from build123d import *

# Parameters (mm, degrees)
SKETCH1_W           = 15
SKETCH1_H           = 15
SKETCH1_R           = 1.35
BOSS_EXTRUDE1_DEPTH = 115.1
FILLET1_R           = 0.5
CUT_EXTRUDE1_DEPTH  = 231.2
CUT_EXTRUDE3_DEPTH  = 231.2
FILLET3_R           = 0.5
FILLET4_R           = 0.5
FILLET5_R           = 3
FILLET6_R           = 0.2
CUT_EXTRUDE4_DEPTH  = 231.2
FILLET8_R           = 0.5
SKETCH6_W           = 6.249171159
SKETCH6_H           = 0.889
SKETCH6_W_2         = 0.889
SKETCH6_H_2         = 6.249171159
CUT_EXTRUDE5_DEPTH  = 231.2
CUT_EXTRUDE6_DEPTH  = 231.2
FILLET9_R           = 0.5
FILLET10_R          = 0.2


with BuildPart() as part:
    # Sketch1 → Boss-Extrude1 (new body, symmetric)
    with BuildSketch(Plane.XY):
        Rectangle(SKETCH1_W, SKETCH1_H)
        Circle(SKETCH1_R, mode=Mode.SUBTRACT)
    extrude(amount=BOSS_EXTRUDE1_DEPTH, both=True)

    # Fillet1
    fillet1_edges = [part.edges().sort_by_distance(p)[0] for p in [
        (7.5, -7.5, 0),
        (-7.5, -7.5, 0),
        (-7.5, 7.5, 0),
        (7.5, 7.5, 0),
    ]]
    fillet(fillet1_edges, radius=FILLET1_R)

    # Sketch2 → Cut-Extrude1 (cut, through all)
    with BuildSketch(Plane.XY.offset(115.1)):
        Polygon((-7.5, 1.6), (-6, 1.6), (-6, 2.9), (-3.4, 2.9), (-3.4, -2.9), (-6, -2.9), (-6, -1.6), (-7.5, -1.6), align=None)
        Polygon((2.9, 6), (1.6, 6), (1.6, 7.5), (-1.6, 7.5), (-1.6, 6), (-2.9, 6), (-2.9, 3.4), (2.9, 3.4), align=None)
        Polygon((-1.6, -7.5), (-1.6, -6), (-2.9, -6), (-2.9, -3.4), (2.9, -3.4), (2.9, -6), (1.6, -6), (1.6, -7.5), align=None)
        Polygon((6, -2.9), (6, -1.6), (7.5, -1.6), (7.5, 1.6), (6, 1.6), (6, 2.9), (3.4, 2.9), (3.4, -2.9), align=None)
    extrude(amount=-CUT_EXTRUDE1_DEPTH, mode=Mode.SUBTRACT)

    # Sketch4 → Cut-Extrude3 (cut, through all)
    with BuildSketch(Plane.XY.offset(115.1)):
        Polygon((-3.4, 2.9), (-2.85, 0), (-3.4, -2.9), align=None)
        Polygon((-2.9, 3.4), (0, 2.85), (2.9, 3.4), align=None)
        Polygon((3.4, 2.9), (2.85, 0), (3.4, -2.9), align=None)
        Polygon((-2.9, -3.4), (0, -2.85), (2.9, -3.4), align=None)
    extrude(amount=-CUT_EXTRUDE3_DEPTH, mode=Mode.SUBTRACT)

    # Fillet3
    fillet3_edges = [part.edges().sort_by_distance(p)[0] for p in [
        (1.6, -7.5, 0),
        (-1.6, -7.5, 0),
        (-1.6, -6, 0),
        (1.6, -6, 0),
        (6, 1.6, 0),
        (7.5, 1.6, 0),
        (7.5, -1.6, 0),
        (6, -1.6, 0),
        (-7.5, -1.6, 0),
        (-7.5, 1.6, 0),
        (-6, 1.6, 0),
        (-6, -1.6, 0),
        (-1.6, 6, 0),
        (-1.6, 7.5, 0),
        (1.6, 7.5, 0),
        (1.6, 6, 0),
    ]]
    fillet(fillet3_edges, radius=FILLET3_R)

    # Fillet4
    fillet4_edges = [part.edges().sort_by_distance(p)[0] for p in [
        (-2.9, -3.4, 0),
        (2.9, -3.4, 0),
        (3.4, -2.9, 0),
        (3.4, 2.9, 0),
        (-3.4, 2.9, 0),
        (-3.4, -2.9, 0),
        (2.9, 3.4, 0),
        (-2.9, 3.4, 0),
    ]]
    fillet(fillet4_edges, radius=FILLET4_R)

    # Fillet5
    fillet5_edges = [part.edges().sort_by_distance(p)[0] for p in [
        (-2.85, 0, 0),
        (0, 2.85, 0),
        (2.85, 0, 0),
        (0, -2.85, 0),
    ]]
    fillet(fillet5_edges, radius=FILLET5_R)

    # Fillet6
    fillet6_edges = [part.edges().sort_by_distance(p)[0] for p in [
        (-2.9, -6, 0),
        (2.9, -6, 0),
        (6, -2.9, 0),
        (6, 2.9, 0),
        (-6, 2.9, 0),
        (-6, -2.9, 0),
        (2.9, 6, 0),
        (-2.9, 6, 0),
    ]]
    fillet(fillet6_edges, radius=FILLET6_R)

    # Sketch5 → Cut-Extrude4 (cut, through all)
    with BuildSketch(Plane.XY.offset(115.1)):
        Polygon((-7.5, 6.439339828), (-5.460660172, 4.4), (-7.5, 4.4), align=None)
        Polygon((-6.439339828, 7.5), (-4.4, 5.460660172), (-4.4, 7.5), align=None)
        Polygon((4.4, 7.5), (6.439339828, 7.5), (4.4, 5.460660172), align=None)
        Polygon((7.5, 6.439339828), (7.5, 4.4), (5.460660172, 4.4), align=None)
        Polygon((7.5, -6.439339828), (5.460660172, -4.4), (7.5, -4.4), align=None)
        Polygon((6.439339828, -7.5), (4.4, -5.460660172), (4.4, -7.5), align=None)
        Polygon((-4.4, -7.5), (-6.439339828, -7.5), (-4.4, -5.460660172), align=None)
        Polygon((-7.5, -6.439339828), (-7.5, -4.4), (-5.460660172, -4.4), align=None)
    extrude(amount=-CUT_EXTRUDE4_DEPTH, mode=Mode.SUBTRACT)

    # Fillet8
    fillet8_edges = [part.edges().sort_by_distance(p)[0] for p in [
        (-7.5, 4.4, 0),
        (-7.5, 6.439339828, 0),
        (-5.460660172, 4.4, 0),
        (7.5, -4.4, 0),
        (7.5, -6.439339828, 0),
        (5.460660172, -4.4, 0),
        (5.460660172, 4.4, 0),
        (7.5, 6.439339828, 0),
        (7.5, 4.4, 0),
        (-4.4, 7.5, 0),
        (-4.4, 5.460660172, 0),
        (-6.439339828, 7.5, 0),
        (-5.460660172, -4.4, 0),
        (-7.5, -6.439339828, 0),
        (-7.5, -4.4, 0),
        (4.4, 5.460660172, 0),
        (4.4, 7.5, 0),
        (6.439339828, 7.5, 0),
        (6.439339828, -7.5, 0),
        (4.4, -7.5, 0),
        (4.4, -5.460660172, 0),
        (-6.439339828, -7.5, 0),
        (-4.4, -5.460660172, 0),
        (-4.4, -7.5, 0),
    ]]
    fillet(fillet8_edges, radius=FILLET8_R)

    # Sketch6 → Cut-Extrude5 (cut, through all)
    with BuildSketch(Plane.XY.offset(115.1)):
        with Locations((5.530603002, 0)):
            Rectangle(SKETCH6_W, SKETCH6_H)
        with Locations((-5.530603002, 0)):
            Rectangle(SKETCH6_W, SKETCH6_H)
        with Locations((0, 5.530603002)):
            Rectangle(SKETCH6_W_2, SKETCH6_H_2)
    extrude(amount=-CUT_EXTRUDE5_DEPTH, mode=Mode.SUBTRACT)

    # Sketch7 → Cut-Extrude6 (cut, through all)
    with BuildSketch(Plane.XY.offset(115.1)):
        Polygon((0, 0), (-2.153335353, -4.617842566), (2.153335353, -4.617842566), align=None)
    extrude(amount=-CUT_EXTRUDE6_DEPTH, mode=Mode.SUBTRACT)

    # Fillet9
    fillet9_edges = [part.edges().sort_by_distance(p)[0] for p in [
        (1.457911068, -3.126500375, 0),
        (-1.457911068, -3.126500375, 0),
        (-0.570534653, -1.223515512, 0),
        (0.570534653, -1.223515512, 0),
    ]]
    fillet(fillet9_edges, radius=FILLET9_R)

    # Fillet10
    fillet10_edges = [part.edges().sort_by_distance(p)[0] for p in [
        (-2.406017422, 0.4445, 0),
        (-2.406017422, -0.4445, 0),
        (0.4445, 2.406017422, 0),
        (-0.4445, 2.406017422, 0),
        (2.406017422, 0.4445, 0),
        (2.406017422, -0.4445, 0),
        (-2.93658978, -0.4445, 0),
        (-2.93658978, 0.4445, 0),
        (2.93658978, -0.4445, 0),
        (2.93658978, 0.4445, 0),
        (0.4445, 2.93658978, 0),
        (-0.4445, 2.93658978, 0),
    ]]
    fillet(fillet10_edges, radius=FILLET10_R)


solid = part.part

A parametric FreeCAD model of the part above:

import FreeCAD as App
import Part
import Sketcher
Q = App.Units.Quantity


def edges_at(feature, points):
    """Names of the edges that pass closest to the given points."""
    edges = feature.Shape.Edges
    near = lambda p: min(range(len(edges)), key=lambda i: edges[i].distToShape(Part.Vertex(*p))[0])
    return sorted({f"Edge{near(p) + 1}" for p in points})

doc = App.newDocument("Part")
body = doc.addObject("PartDesign::Body", "Body")

# Sketch on XY plane
sketch1 = body.newObject("Sketcher::SketchObject", "Sketch")
sketch1.AttachmentSupport = (doc.getObject("XY_Plane"), [""])
sketch1.MapMode = "FlatFace"
sketch1.addGeometry([
    Part.LineSegment(App.Vector(-7.5, 7.5, 0), App.Vector(-7.5, -7.5, 0)),  # 0
    Part.LineSegment(App.Vector(-7.5, -7.5, 0), App.Vector(7.5, -7.5, 0)),  # 1
    Part.LineSegment(App.Vector(7.5, -7.5, 0), App.Vector(7.5, 7.5, 0)),  # 2
    Part.LineSegment(App.Vector(7.5, 7.5, 0), App.Vector(-7.5, 7.5, 0)),  # 3
    Part.Circle(App.Vector(0, 0, 0), App.Vector(0, 0, 1), 1.4),  # 4
], False)
sketch1.addConstraint([
    Sketcher.Constraint("Coincident", 0, 2, 1, 1),
    Sketcher.Constraint("Coincident", 1, 2, 2, 1),
    Sketcher.Constraint("Coincident", 2, 2, 3, 1),
    Sketcher.Constraint("Coincident", 3, 2, 0, 1),
    Sketcher.Constraint("Vertical", 0),
    Sketcher.Constraint("Horizontal", 1),
    Sketcher.Constraint("Vertical", 2),
    Sketcher.Constraint("Horizontal", 3),
    Sketcher.Constraint("Coincident", 4, 3, -1, 1),
    Sketcher.Constraint("Symmetric", 0, 2, 2, 2, -1, 1),
    Sketcher.Constraint("Equal", 3, 0),
    Sketcher.Constraint("Diameter", 4, 2.7),
    Sketcher.Constraint("DistanceX", 1, 1, 1, 2, 15.0),
])
pad1 = body.newObject("PartDesign::Pad", "Pad")
pad1.Profile = sketch1
pad1.Length = 230.2
pad1.Midplane = True
doc.recompute()

fillet = body.newObject("PartDesign::Fillet", "Fillet")
fillet.Base = (pad1, edges_at(pad1, [
    (7.5, -7.5, 0),
    (-7.5, -7.5, 0),
    (-7.5, 7.5, 0),
    (7.5, 7.5, 0),
]))
fillet.Radius = 0.5

# Sketch on XY plane
sketch2 = body.newObject("Sketcher::SketchObject", "Sketch001")
sketch2.AttachmentSupport = (doc.getObject("XY_Plane"), [""])
sketch2.MapMode = "FlatFace"
sketch2.AttachmentOffset = App.Placement(App.Vector(0, 0, 115.1), App.Rotation())
sketch2.addGeometry([
    Part.LineSegment(App.Vector(-6, 1.6, 0), App.Vector(-7.5, 1.6, 0)),  # 0
    Part.LineSegment(App.Vector(-7.5, 1.6, 0), App.Vector(-7.5, -1.6, 0)),  # 1
    Part.LineSegment(App.Vector(-7.5, -1.6, 0), App.Vector(-6, -1.6, 0)),  # 2
    Part.LineSegment(App.Vector(-6, -1.6, 0), App.Vector(-6, -2.9, 0)),  # 3
    Part.LineSegment(App.Vector(-6, -2.9, 0), App.Vector(-3.4, -2.9, 0)),  # 4
    Part.LineSegment(App.Vector(-3.4, -2.9, 0), App.Vector(-3.4, 2.9, 0)),  # 5
    Part.LineSegment(App.Vector(-3.4, 2.9, 0), App.Vector(-6, 2.9, 0)),  # 6
    Part.LineSegment(App.Vector(-6, 2.9, 0), App.Vector(-6, 1.6, 0)),  # 7
    Part.LineSegment(App.Vector(2.9, 6, 0), App.Vector(1.6, 6, 0)),  # 8
    Part.LineSegment(App.Vector(1.6, 6, 0), App.Vector(1.6, 7.5, 0)),  # 9
    Part.LineSegment(App.Vector(1.6, 7.5, 0), App.Vector(-1.6, 7.5, 0)),  # 10
    Part.LineSegment(App.Vector(-1.6, 7.5, 0), App.Vector(-1.6, 6, 0)),  # 11
    Part.LineSegment(App.Vector(-1.6, 6, 0), App.Vector(-2.9, 6, 0)),  # 12
    Part.LineSegment(App.Vector(-2.9, 6, 0), App.Vector(-2.9, 3.4, 0)),  # 13
    Part.LineSegment(App.Vector(-2.9, 3.4, 0), App.Vector(2.9, 3.4, 0)),  # 14
    Part.LineSegment(App.Vector(2.9, 3.4, 0), App.Vector(2.9, 6, 0)),  # 15
    Part.LineSegment(App.Vector(-1.6, -6, 0), App.Vector(-1.6, -7.5, 0)),  # 16
    Part.LineSegment(App.Vector(-1.6, -7.5, 0), App.Vector(1.6, -7.5, 0)),  # 17
    Part.LineSegment(App.Vector(1.6, -7.5, 0), App.Vector(1.6, -6, 0)),  # 18
    Part.LineSegment(App.Vector(1.6, -6, 0), App.Vector(2.9, -6, 0)),  # 19
    Part.LineSegment(App.Vector(2.9, -6, 0), App.Vector(2.9, -3.4, 0)),  # 20
    Part.LineSegment(App.Vector(2.9, -3.4, 0), App.Vector(-2.9, -3.4, 0)),  # 21
    Part.LineSegment(App.Vector(-2.9, -3.4, 0), App.Vector(-2.9, -6, 0)),  # 22
    Part.LineSegment(App.Vector(-2.9, -6, 0), App.Vector(-1.6, -6, 0)),  # 23
    Part.LineSegment(App.Vector(6, -2.9, 0), App.Vector(6, -1.6, 0)),  # 24
    Part.LineSegment(App.Vector(6, -1.6, 0), App.Vector(7.5, -1.6, 0)),  # 25
    Part.LineSegment(App.Vector(7.5, -1.6, 0), App.Vector(7.5, 1.6, 0)),  # 26
    Part.LineSegment(App.Vector(7.5, 1.6, 0), App.Vector(6, 1.6, 0)),  # 27
    Part.LineSegment(App.Vector(6, 1.6, 0), App.Vector(6, 2.9, 0)),  # 28
    Part.LineSegment(App.Vector(6, 2.9, 0), App.Vector(3.4, 2.9, 0)),  # 29
    Part.LineSegment(App.Vector(3.4, 2.9, 0), App.Vector(3.4, -2.9, 0)),  # 30
    Part.LineSegment(App.Vector(3.4, -2.9, 0), App.Vector(6, -2.9, 0)),  # 31
], False)
sketch2.addConstraint([
    Sketcher.Constraint("Coincident", 0, 2, 1, 1),
    Sketcher.Constraint("Coincident", 1, 2, 2, 1),
    Sketcher.Constraint("Coincident", 2, 2, 3, 1),
    Sketcher.Constraint("Coincident", 3, 2, 4, 1),
    Sketcher.Constraint("Coincident", 4, 2, 5, 1),
    Sketcher.Constraint("Coincident", 5, 2, 6, 1),
    Sketcher.Constraint("Coincident", 6, 2, 7, 1),
    Sketcher.Constraint("Coincident", 7, 2, 0, 1),
    Sketcher.Constraint("Coincident", 8, 2, 9, 1),
    Sketcher.Constraint("Coincident", 9, 2, 10, 1),
    Sketcher.Constraint("Coincident", 10, 2, 11, 1),
    Sketcher.Constraint("Coincident", 11, 2, 12, 1),
    Sketcher.Constraint("Coincident", 12, 2, 13, 1),
    Sketcher.Constraint("Coincident", 13, 2, 14, 1),
    Sketcher.Constraint("Coincident", 14, 2, 15, 1),
    Sketcher.Constraint("Coincident", 15, 2, 8, 1),
    Sketcher.Constraint("Coincident", 16, 2, 17, 1),
    Sketcher.Constraint("Coincident", 17, 2, 18, 1),
    Sketcher.Constraint("Coincident", 18, 2, 19, 1),
    Sketcher.Constraint("Coincident", 19, 2, 20, 1),
    Sketcher.Constraint("Coincident", 20, 2, 21, 1),
    Sketcher.Constraint("Coincident", 21, 2, 22, 1),
    Sketcher.Constraint("Coincident", 22, 2, 23, 1),
    Sketcher.Constraint("Coincident", 23, 2, 16, 1),
    Sketcher.Constraint("Coincident", 24, 2, 25, 1),
    Sketcher.Constraint("Coincident", 25, 2, 26, 1),
    Sketcher.Constraint("Coincident", 26, 2, 27, 1),
    Sketcher.Constraint("Coincident", 27, 2, 28, 1),
    Sketcher.Constraint("Coincident", 28, 2, 29, 1),
    Sketcher.Constraint("Coincident", 29, 2, 30, 1),
    Sketcher.Constraint("Coincident", 30, 2, 31, 1),
    Sketcher.Constraint("Coincident", 31, 2, 24, 1),
    Sketcher.Constraint("Horizontal", 0),
    Sketcher.Constraint("Vertical", 1),
    Sketcher.Constraint("Horizontal", 2),
    Sketcher.Constraint("Vertical", 3),
    Sketcher.Constraint("Horizontal", 4),
    Sketcher.Constraint("Vertical", 5),
    Sketcher.Constraint("Horizontal", 6),
    Sketcher.Constraint("Vertical", 7),
    Sketcher.Constraint("Horizontal", 8),
    Sketcher.Constraint("Vertical", 9),
    Sketcher.Constraint("Horizontal", 10),
    Sketcher.Constraint("Vertical", 11),
    Sketcher.Constraint("Horizontal", 12),
    Sketcher.Constraint("Vertical", 13),
    Sketcher.Constraint("Horizontal", 14),
    Sketcher.Constraint("Vertical", 15),
    Sketcher.Constraint("Vertical", 16),
    Sketcher.Constraint("Horizontal", 17),
    Sketcher.Constraint("Vertical", 18),
    Sketcher.Constraint("Horizontal", 19),
    Sketcher.Constraint("Vertical", 20),
    Sketcher.Constraint("Horizontal", 21),
    Sketcher.Constraint("Vertical", 22),
    Sketcher.Constraint("Horizontal", 23),
    Sketcher.Constraint("Vertical", 24),
    Sketcher.Constraint("Horizontal", 25),
    Sketcher.Constraint("Vertical", 26),
    Sketcher.Constraint("Horizontal", 27),
    Sketcher.Constraint("Vertical", 28),
    Sketcher.Constraint("Horizontal", 29),
    Sketcher.Constraint("Vertical", 30),
    Sketcher.Constraint("Horizontal", 31),
    Sketcher.Constraint("Symmetric", 9, 2, 16, 2, -1, 1),
    Sketcher.Constraint("Symmetric", 11, 2, 18, 2, -1, 1),
    Sketcher.Constraint("Symmetric", 13, 2, 20, 2, -1, 1),
    Sketcher.Constraint("Symmetric", 15, 2, 22, 2, -1, 1),
    Sketcher.Constraint("Symmetric", 7, 2, 24, 2, -1, 1),
    Sketcher.Constraint("Symmetric", 1, 2, 26, 2, -1, 1),
    Sketcher.Constraint("Symmetric", 3, 2, 28, 2, -1, 1),
    Sketcher.Constraint("Symmetric", 5, 2, 30, 2, -1, 1),
    Sketcher.Constraint("Symmetric", 8, 2, 11, 2, -2),
    Sketcher.Constraint("Symmetric", 2, 2, 24, 2, -2),
    Sketcher.Constraint("Horizontal", 6, 2, 28, 2),
    Sketcher.Constraint("Vertical", 15, 2, 19, 2),
    Sketcher.Constraint("Equal", 17, 1),
    Sketcher.Constraint("Equal", 23, 3),
    Sketcher.Constraint("Equal", 27, 9),
    Sketcher.Constraint("Equal", 31, 13),
    Sketcher.Constraint("DistanceX", 0, 2, 0, 1, 1.5),
    Sketcher.Constraint("DistanceX", 4, 1, 4, 2, 2.6),
    Sketcher.Constraint("DistanceX", 8, 2, 8, 1, 1.3),
    Sketcher.Constraint("DistanceX", 10, 2, 10, 1, 3.2),
    Sketcher.Constraint("DistanceX", 2, 2, -1, 1, 6.0),
    Sketcher.Constraint("DistanceY", -1, 1, 8, 2, 6.0),
])
pocket1 = body.newObject("PartDesign::Pocket", "Pocket")
pocket1.Profile = sketch2
pocket1.Type = "ThroughAll"

# Sketch on XY plane
sketch3 = body.newObject("Sketcher::SketchObject", "Sketch002")
sketch3.AttachmentSupport = (doc.getObject("XY_Plane"), [""])
sketch3.MapMode = "FlatFace"
sketch3.AttachmentOffset = App.Placement(App.Vector(0, 0, 115.1), App.Rotation())
sketch3.addGeometry([
    Part.LineSegment(App.Vector(-2.9, 0, 0), App.Vector(-3.4, 2.9, 0)),  # 0
    Part.LineSegment(App.Vector(-3.4, 2.9, 0), App.Vector(-3.4, -2.9, 0)),  # 1
    Part.LineSegment(App.Vector(-3.4, -2.9, 0), App.Vector(-2.9, 0, 0)),  # 2
    Part.LineSegment(App.Vector(-2.9, 3.4, 0), App.Vector(0, 2.9, 0)),  # 3
    Part.LineSegment(App.Vector(0, 2.9, 0), App.Vector(2.9, 3.4, 0)),  # 4
    Part.LineSegment(App.Vector(2.9, 3.4, 0), App.Vector(-2.9, 3.4, 0)),  # 5
    Part.LineSegment(App.Vector(3.4, 2.9, 0), App.Vector(2.9, 0, 0)),  # 6
    Part.LineSegment(App.Vector(2.9, 0, 0), App.Vector(3.4, -2.9, 0)),  # 7
    Part.LineSegment(App.Vector(3.4, -2.9, 0), App.Vector(3.4, 2.9, 0)),  # 8
    Part.LineSegment(App.Vector(0, -2.9, 0), App.Vector(-2.9, -3.4, 0)),  # 9
    Part.LineSegment(App.Vector(-2.9, -3.4, 0), App.Vector(2.9, -3.4, 0)),  # 10
    Part.LineSegment(App.Vector(2.9, -3.4, 0), App.Vector(0, -2.9, 0)),  # 11
], False)
sketch3.addConstraint([
    Sketcher.Constraint("Coincident", 0, 2, 1, 1),
    Sketcher.Constraint("Coincident", 1, 2, 2, 1),
    Sketcher.Constraint("Coincident", 2, 2, 0, 1),
    Sketcher.Constraint("Coincident", 3, 2, 4, 1),
    Sketcher.Constraint("Coincident", 4, 2, 5, 1),
    Sketcher.Constraint("Coincident", 5, 2, 3, 1),
    Sketcher.Constraint("Coincident", 6, 2, 7, 1),
    Sketcher.Constraint("Coincident", 7, 2, 8, 1),
    Sketcher.Constraint("Coincident", 8, 2, 6, 1),
    Sketcher.Constraint("Coincident", 9, 2, 10, 1),
    Sketcher.Constraint("Coincident", 10, 2, 11, 1),
    Sketcher.Constraint("Coincident", 11, 2, 9, 1),
    Sketcher.Constraint("Vertical", 1),
    Sketcher.Constraint("Horizontal", 5),
    Sketcher.Constraint("Vertical", 8),
    Sketcher.Constraint("Horizontal", 10),
    Sketcher.Constraint("Symmetric", 2, 2, 6, 2, -1, 1),
    Sketcher.Constraint("Symmetric", 0, 2, 7, 2, -1, 1),
    Sketcher.Constraint("Symmetric", 4, 2, 9, 2, -1, 1),
    Sketcher.Constraint("Symmetric", 3, 2, 11, 2, -1, 1),
    Sketcher.Constraint("PointOnObject", 2, 2, -1),
    Sketcher.Constraint("PointOnObject", 3, 2, -2),
    Sketcher.Constraint("Perpendicular", 2, 3),
    Sketcher.Constraint("Perpendicular", 0, 4),
    Sketcher.Constraint("Perpendicular", 3, 6),
    Sketcher.Constraint("Perpendicular", 6, 11),
    Sketcher.Constraint("Horizontal", 1, 2, 7, 2),
    Sketcher.Constraint("Equal", 10, 1),
    Sketcher.Constraint("DistanceX", 5, 2, 5, 1, 5.8),
    Sketcher.Constraint("DistanceX", 0, 2, -1, 1, 3.4),
    Sketcher.Constraint("DistanceY", -1, 1, 4, 2, 3.4),
    Sketcher.Constraint("DistanceX", 2, 2, 6, 2, 5.7),
])
pocket2 = body.newObject("PartDesign::Pocket", "Pocket001")
pocket2.Profile = sketch3
pocket2.Type = "ThroughAll"
doc.recompute()

fillet2 = body.newObject("PartDesign::Fillet", "Fillet001")
fillet2.Base = (pocket2, edges_at(pocket2, [
    (1.6, -7.5, 0),
    (-1.6, -7.5, 0),
    (-1.6, -6, 0),
    (1.6, -6, 0),
    (6, 1.6, 0),
    (7.5, 1.6, 0),
    (7.5, -1.6, 0),
    (6, -1.6, 0),
    (-7.5, -1.6, 0),
    (-7.5, 1.6, 0),
    (-6, 1.6, 0),
    (-6, -1.6, 0),
    (-1.6, 6, 0),
    (-1.6, 7.5, 0),
    (1.6, 7.5, 0),
    (1.6, 6, 0),
]))
fillet2.Radius = 0.5
doc.recompute()

fillet3 = body.newObject("PartDesign::Fillet", "Fillet002")
fillet3.Base = (fillet2, edges_at(fillet2, [
    (-2.9, -3.4, 0),
    (2.9, -3.4, 0),
    (3.4, -2.9, 0),
    (3.4, 2.9, 0),
    (-3.4, 2.9, 0),
    (-3.4, -2.9, 0),
    (2.9, 3.4, 0),
    (-2.9, 3.4, 0),
]))
fillet3.Radius = 0.5
doc.recompute()

fillet4 = body.newObject("PartDesign::Fillet", "Fillet003")
fillet4.Base = (fillet3, edges_at(fillet3, [
    (-2.85, 0, 0),
    (0, 2.85, 0),
    (2.85, 0, 0),
    (0, -2.85, 0),
]))
fillet4.Radius = 3
doc.recompute()

fillet5 = body.newObject("PartDesign::Fillet", "Fillet004")
fillet5.Base = (fillet4, edges_at(fillet4, [
    (-2.9, -6, 0),
    (2.9, -6, 0),
    (6, -2.9, 0),
    (6, 2.9, 0),
    (-6, 2.9, 0),
    (-6, -2.9, 0),
    (2.9, 6, 0),
    (-2.9, 6, 0),
]))
fillet5.Radius = 0.2

# Sketch on XY plane
sketch4 = body.newObject("Sketcher::SketchObject", "Sketch003")
sketch4.AttachmentSupport = (doc.getObject("XY_Plane"), [""])
sketch4.MapMode = "FlatFace"
sketch4.AttachmentOffset = App.Placement(App.Vector(0, 0, 115.1), App.Rotation())
sketch4.addGeometry([
    Part.LineSegment(App.Vector(-5.5, 4.4, 0), App.Vector(-7.5, 6.4, 0)),  # 0
    Part.LineSegment(App.Vector(-7.5, 6.4, 0), App.Vector(-7.5, 4.4, 0)),  # 1
    Part.LineSegment(App.Vector(-7.5, 4.4, 0), App.Vector(-5.5, 4.4, 0)),  # 2
    Part.LineSegment(App.Vector(-6.4, 7.5, 0), App.Vector(-4.4, 5.5, 0)),  # 3
    Part.LineSegment(App.Vector(-4.4, 5.5, 0), App.Vector(-4.4, 7.5, 0)),  # 4
    Part.LineSegment(App.Vector(-4.4, 7.5, 0), App.Vector(-6.4, 7.5, 0)),  # 5
    Part.LineSegment(App.Vector(6.4, 7.5, 0), App.Vector(4.4, 7.5, 0)),  # 6
    Part.LineSegment(App.Vector(4.4, 7.5, 0), App.Vector(4.4, 5.5, 0)),  # 7
    Part.LineSegment(App.Vector(4.4, 5.5, 0), App.Vector(6.4, 7.5, 0)),  # 8
    Part.LineSegment(App.Vector(7.5, 4.4, 0), App.Vector(7.5, 6.4, 0)),  # 9
    Part.LineSegment(App.Vector(7.5, 6.4, 0), App.Vector(5.5, 4.4, 0)),  # 10
    Part.LineSegment(App.Vector(5.5, 4.4, 0), App.Vector(7.5, 4.4, 0)),  # 11
    Part.LineSegment(App.Vector(5.5, -4.4, 0), App.Vector(7.5, -6.4, 0)),  # 12
    Part.LineSegment(App.Vector(7.5, -6.4, 0), App.Vector(7.5, -4.4, 0)),  # 13
    Part.LineSegment(App.Vector(7.5, -4.4, 0), App.Vector(5.5, -4.4, 0)),  # 14
    Part.LineSegment(App.Vector(6.4, -7.5, 0), App.Vector(4.4, -5.5, 0)),  # 15
    Part.LineSegment(App.Vector(4.4, -5.5, 0), App.Vector(4.4, -7.5, 0)),  # 16
    Part.LineSegment(App.Vector(4.4, -7.5, 0), App.Vector(6.4, -7.5, 0)),  # 17
    Part.LineSegment(App.Vector(-6.4, -7.5, 0), App.Vector(-4.4, -7.5, 0)),  # 18
    Part.LineSegment(App.Vector(-4.4, -7.5, 0), App.Vector(-4.4, -5.5, 0)),  # 19
    Part.LineSegment(App.Vector(-4.4, -5.5, 0), App.Vector(-6.4, -7.5, 0)),  # 20
    Part.LineSegment(App.Vector(-7.5, -4.4, 0), App.Vector(-7.5, -6.4, 0)),  # 21
    Part.LineSegment(App.Vector(-7.5, -6.4, 0), App.Vector(-5.5, -4.4, 0)),  # 22
    Part.LineSegment(App.Vector(-5.5, -4.4, 0), App.Vector(-7.5, -4.4, 0)),  # 23
], False)
sketch4.addConstraint([
    Sketcher.Constraint("Coincident", 0, 2, 1, 1),
    Sketcher.Constraint("Coincident", 1, 2, 2, 1),
    Sketcher.Constraint("Coincident", 2, 2, 0, 1),
    Sketcher.Constraint("Coincident", 3, 2, 4, 1),
    Sketcher.Constraint("Coincident", 4, 2, 5, 1),
    Sketcher.Constraint("Coincident", 5, 2, 3, 1),
    Sketcher.Constraint("Coincident", 6, 2, 7, 1),
    Sketcher.Constraint("Coincident", 7, 2, 8, 1),
    Sketcher.Constraint("Coincident", 8, 2, 6, 1),
    Sketcher.Constraint("Coincident", 9, 2, 10, 1),
    Sketcher.Constraint("Coincident", 10, 2, 11, 1),
    Sketcher.Constraint("Coincident", 11, 2, 9, 1),
    Sketcher.Constraint("Coincident", 12, 2, 13, 1),
    Sketcher.Constraint("Coincident", 13, 2, 14, 1),
    Sketcher.Constraint("Coincident", 14, 2, 12, 1),
    Sketcher.Constraint("Coincident", 15, 2, 16, 1),
    Sketcher.Constraint("Coincident", 16, 2, 17, 1),
    Sketcher.Constraint("Coincident", 17, 2, 15, 1),
    Sketcher.Constraint("Coincident", 18, 2, 19, 1),
    Sketcher.Constraint("Coincident", 19, 2, 20, 1),
    Sketcher.Constraint("Coincident", 20, 2, 18, 1),
    Sketcher.Constraint("Coincident", 21, 2, 22, 1),
    Sketcher.Constraint("Coincident", 22, 2, 23, 1),
    Sketcher.Constraint("Coincident", 23, 2, 21, 1),
    Sketcher.Constraint("Vertical", 1),
    Sketcher.Constraint("Horizontal", 2),
    Sketcher.Constraint("Vertical", 4),
    Sketcher.Constraint("Horizontal", 5),
    Sketcher.Constraint("Horizontal", 6),
    Sketcher.Constraint("Vertical", 7),
    Sketcher.Constraint("Vertical", 9),
    Sketcher.Constraint("Horizontal", 11),
    Sketcher.Constraint("Vertical", 13),
    Sketcher.Constraint("Horizontal", 14),
    Sketcher.Constraint("Vertical", 16),
    Sketcher.Constraint("Horizontal", 17),
    Sketcher.Constraint("Horizontal", 18),
    Sketcher.Constraint("Vertical", 19),
    Sketcher.Constraint("Vertical", 21),
    Sketcher.Constraint("Horizontal", 23),
    Sketcher.Constraint("Symmetric", 0, 2, 12, 2, -1, 1),
    Sketcher.Constraint("Symmetric", 2, 2, 14, 2, -1, 1),
    Sketcher.Constraint("Symmetric", 3, 2, 15, 2, -1, 1),
    Sketcher.Constraint("Symmetric", 5, 2, 17, 2, -1, 1),
    Sketcher.Constraint("Symmetric", 6, 2, 18, 2, -1, 1),
    Sketcher.Constraint("Symmetric", 9, 2, 21, 2, -1, 1),
    Sketcher.Constraint("Symmetric", 10, 2, 22, 2, -1, 1),
    Sketcher.Constraint("Symmetric", 4, 2, 6, 2, -2),
    Sketcher.Constraint("Symmetric", 0, 2, 9, 2, -2),
    Sketcher.Constraint("Symmetric", 2, 2, 10, 2, -2),
    Sketcher.Constraint("Parallel", 0, 3),
    Sketcher.Constraint("Perpendicular", 3, 8),
    Sketcher.Constraint("Parallel", 8, 10),
    Sketcher.Constraint("Perpendicular", 15, 20),
    Sketcher.Constraint("Horizontal", 3, 2, 7, 2),
    Sketcher.Constraint("Horizontal", 15, 2, 19, 2),
    Sketcher.Constraint("Equal", 2, 5),
    Sketcher.Constraint("DistanceX", 0, 2, -1, 1, 7.5),
    Sketcher.Constraint("DistanceY", -1, 1, 1, 2, 4.4),
    Sketcher.Constraint("DistanceX", 3, 2, -1, 1, 4.4),
    Sketcher.Constraint("DistanceY", -1, 1, 4, 2, 7.5),
    Sketcher.Constraint("DistanceX", 2, 1, 2, 2, 2.03934),
])
pocket3 = body.newObject("PartDesign::Pocket", "Pocket002")
pocket3.Profile = sketch4
pocket3.Type = "ThroughAll"
doc.recompute()

fillet6 = body.newObject("PartDesign::Fillet", "Fillet005")
fillet6.Base = (pocket3, edges_at(pocket3, [
    (-7.5, 4.4, 0),
    (-7.5, 6.439, 0),
    (-5.461, 4.4, 0),
    (7.5, -4.4, 0),
    (7.5, -6.439, 0),
    (5.461, -4.4, 0),
    (5.461, 4.4, 0),
    (7.5, 6.439, 0),
    (7.5, 4.4, 0),
    (-4.4, 7.5, 0),
    (-4.4, 5.461, 0),
    (-6.439, 7.5, 0),
    (-5.461, -4.4, 0),
    (-7.5, -6.439, 0),
    (-7.5, -4.4, 0),
    (4.4, 5.461, 0),
    (4.4, 7.5, 0),
    (6.439, 7.5, 0),
    (6.439, -7.5, 0),
    (4.4, -7.5, 0),
    (4.4, -5.461, 0),
    (-6.439, -7.5, 0),
    (-4.4, -5.461, 0),
    (-4.4, -7.5, 0),
]))
fillet6.Radius = 0.5

# Sketch on XY plane
sketch5 = body.newObject("Sketcher::SketchObject", "Sketch004")
sketch5.AttachmentSupport = (doc.getObject("XY_Plane"), [""])
sketch5.MapMode = "FlatFace"
sketch5.AttachmentOffset = App.Placement(App.Vector(0, 0, 115.1), App.Rotation())
sketch5.addGeometry([
    Part.LineSegment(App.Vector(2.4, 0.4, 0), App.Vector(2.4, -0.4, 0)),  # 0
    Part.LineSegment(App.Vector(2.4, -0.4, 0), App.Vector(8.7, -0.4, 0)),  # 1
    Part.LineSegment(App.Vector(8.7, -0.4, 0), App.Vector(8.7, 0.4, 0)),  # 2
    Part.LineSegment(App.Vector(8.7, 0.4, 0), App.Vector(2.4, 0.4, 0)),  # 3
    Part.LineSegment(App.Vector(-8.7, 0.4, 0), App.Vector(-8.7, -0.4, 0)),  # 4
    Part.LineSegment(App.Vector(-8.7, -0.4, 0), App.Vector(-2.4, -0.4, 0)),  # 5
    Part.LineSegment(App.Vector(-2.4, -0.4, 0), App.Vector(-2.4, 0.4, 0)),  # 6
    Part.LineSegment(App.Vector(-2.4, 0.4, 0), App.Vector(-8.7, 0.4, 0)),  # 7
    Part.LineSegment(App.Vector(-0.4, 8.7, 0), App.Vector(-0.4, 2.4, 0)),  # 8
    Part.LineSegment(App.Vector(-0.4, 2.4, 0), App.Vector(0.4, 2.4, 0)),  # 9
    Part.LineSegment(App.Vector(0.4, 2.4, 0), App.Vector(0.4, 8.7, 0)),  # 10
    Part.LineSegment(App.Vector(0.4, 8.7, 0), App.Vector(-0.4, 8.7, 0)),  # 11
], False)
sketch5.addConstraint([
    Sketcher.Constraint("Coincident", 0, 2, 1, 1),
    Sketcher.Constraint("Coincident", 1, 2, 2, 1),
    Sketcher.Constraint("Coincident", 2, 2, 3, 1),
    Sketcher.Constraint("Coincident", 3, 2, 0, 1),
    Sketcher.Constraint("Coincident", 4, 2, 5, 1),
    Sketcher.Constraint("Coincident", 5, 2, 6, 1),
    Sketcher.Constraint("Coincident", 6, 2, 7, 1),
    Sketcher.Constraint("Coincident", 7, 2, 4, 1),
    Sketcher.Constraint("Coincident", 8, 2, 9, 1),
    Sketcher.Constraint("Coincident", 9, 2, 10, 1),
    Sketcher.Constraint("Coincident", 10, 2, 11, 1),
    Sketcher.Constraint("Coincident", 11, 2, 8, 1),
    Sketcher.Constraint("Vertical", 0),
    Sketcher.Constraint("Horizontal", 1),
    Sketcher.Constraint("Vertical", 2),
    Sketcher.Constraint("Horizontal", 3),
    Sketcher.Constraint("Vertical", 4),
    Sketcher.Constraint("Horizontal", 5),
    Sketcher.Constraint("Vertical", 6),
    Sketcher.Constraint("Horizontal", 7),
    Sketcher.Constraint("Vertical", 8),
    Sketcher.Constraint("Horizontal", 9),
    Sketcher.Constraint("Vertical", 10),
    Sketcher.Constraint("Horizontal", 11),
    Sketcher.Constraint("Symmetric", 2, 2, 4, 2, -1, 1),
    Sketcher.Constraint("Symmetric", 0, 2, 6, 2, -1, 1),
    Sketcher.Constraint("Horizontal", 1, 2, 4, 2),
    Sketcher.Constraint("Equal", 11, 0),
    Sketcher.Constraint("Equal", 7, 8),
    Sketcher.Constraint("DistanceX", 9, 1, 9, 2, 0.889),
    Sketcher.Constraint("DistanceX", 1, 1, 1, 2, 6.249171),
    Sketcher.Constraint("DistanceX", 8, 2, -1, 1, 0.4445),
    Sketcher.Constraint("DistanceX", -1, 1, 1, 2, 8.655189),
    Sketcher.Constraint("DistanceY", -1, 1, 10, 2, 8.655189),
])
pocket4 = body.newObject("PartDesign::Pocket", "Pocket003")
pocket4.Profile = sketch5
pocket4.Type = "ThroughAll"

# Sketch on XY plane
sketch6 = body.newObject("Sketcher::SketchObject", "Sketch005")
sketch6.AttachmentSupport = (doc.getObject("XY_Plane"), [""])
sketch6.MapMode = "FlatFace"
sketch6.AttachmentOffset = App.Placement(App.Vector(0, 0, 115.1), App.Rotation())
sketch6.addGeometry([
    Part.LineSegment(App.Vector(0, 0, 0), App.Vector(-2.2, -4.6, 0)),
    Part.LineSegment(App.Vector(-2.2, -4.6, 0), App.Vector(2.2, -4.6, 0)),
    Part.LineSegment(App.Vector(2.2, -4.6, 0), App.Vector(0, 0, 0)),
], False)
sketch6.addConstraint([
    Sketcher.Constraint("Coincident", 0, 2, 1, 1),
    Sketcher.Constraint("Coincident", 1, 2, 2, 1),
    Sketcher.Constraint("Coincident", 2, 2, 0, 1),
    Sketcher.Constraint("Horizontal", 1),
    Sketcher.Constraint("Coincident", 2, 2, -1, 1),
    Sketcher.Constraint("Equal", 0, 2),
    Sketcher.Constraint("Angle", 0, Q("-115 deg")),
    Sketcher.Constraint("DistanceX", 1, 1, 1, 2, 4.306671),
])
pocket5 = body.newObject("PartDesign::Pocket", "Pocket004")
pocket5.Profile = sketch6
pocket5.Type = "ThroughAll"
doc.recompute()

fillet7 = body.newObject("PartDesign::Fillet", "Fillet006")
fillet7.Base = (pocket5, edges_at(pocket5, [
    (1.458, -3.127, 0),
    (-1.458, -3.127, 0),
    (-0.571, -1.224, 0),
    (0.571, -1.224, 0),
]))
fillet7.Radius = 0.5
doc.recompute()

fillet8 = body.newObject("PartDesign::Fillet", "Fillet007")
fillet8.Base = (fillet7, edges_at(fillet7, [
    (-2.406, 0.445, 0),
    (-2.406, -0.445, 0),
    (0.445, 2.406, 0),
    (-0.445, 2.406, 0),
    (2.406, 0.445, 0),
    (2.406, -0.445, 0),
    (-2.937, -0.445, 0),
    (-2.937, 0.445, 0),
    (2.937, -0.445, 0),
    (2.937, 0.445, 0),
    (0.445, 2.937, 0),
    (-0.445, 2.937, 0),
]))
fillet8.Radius = 0.2

doc.recompute()
